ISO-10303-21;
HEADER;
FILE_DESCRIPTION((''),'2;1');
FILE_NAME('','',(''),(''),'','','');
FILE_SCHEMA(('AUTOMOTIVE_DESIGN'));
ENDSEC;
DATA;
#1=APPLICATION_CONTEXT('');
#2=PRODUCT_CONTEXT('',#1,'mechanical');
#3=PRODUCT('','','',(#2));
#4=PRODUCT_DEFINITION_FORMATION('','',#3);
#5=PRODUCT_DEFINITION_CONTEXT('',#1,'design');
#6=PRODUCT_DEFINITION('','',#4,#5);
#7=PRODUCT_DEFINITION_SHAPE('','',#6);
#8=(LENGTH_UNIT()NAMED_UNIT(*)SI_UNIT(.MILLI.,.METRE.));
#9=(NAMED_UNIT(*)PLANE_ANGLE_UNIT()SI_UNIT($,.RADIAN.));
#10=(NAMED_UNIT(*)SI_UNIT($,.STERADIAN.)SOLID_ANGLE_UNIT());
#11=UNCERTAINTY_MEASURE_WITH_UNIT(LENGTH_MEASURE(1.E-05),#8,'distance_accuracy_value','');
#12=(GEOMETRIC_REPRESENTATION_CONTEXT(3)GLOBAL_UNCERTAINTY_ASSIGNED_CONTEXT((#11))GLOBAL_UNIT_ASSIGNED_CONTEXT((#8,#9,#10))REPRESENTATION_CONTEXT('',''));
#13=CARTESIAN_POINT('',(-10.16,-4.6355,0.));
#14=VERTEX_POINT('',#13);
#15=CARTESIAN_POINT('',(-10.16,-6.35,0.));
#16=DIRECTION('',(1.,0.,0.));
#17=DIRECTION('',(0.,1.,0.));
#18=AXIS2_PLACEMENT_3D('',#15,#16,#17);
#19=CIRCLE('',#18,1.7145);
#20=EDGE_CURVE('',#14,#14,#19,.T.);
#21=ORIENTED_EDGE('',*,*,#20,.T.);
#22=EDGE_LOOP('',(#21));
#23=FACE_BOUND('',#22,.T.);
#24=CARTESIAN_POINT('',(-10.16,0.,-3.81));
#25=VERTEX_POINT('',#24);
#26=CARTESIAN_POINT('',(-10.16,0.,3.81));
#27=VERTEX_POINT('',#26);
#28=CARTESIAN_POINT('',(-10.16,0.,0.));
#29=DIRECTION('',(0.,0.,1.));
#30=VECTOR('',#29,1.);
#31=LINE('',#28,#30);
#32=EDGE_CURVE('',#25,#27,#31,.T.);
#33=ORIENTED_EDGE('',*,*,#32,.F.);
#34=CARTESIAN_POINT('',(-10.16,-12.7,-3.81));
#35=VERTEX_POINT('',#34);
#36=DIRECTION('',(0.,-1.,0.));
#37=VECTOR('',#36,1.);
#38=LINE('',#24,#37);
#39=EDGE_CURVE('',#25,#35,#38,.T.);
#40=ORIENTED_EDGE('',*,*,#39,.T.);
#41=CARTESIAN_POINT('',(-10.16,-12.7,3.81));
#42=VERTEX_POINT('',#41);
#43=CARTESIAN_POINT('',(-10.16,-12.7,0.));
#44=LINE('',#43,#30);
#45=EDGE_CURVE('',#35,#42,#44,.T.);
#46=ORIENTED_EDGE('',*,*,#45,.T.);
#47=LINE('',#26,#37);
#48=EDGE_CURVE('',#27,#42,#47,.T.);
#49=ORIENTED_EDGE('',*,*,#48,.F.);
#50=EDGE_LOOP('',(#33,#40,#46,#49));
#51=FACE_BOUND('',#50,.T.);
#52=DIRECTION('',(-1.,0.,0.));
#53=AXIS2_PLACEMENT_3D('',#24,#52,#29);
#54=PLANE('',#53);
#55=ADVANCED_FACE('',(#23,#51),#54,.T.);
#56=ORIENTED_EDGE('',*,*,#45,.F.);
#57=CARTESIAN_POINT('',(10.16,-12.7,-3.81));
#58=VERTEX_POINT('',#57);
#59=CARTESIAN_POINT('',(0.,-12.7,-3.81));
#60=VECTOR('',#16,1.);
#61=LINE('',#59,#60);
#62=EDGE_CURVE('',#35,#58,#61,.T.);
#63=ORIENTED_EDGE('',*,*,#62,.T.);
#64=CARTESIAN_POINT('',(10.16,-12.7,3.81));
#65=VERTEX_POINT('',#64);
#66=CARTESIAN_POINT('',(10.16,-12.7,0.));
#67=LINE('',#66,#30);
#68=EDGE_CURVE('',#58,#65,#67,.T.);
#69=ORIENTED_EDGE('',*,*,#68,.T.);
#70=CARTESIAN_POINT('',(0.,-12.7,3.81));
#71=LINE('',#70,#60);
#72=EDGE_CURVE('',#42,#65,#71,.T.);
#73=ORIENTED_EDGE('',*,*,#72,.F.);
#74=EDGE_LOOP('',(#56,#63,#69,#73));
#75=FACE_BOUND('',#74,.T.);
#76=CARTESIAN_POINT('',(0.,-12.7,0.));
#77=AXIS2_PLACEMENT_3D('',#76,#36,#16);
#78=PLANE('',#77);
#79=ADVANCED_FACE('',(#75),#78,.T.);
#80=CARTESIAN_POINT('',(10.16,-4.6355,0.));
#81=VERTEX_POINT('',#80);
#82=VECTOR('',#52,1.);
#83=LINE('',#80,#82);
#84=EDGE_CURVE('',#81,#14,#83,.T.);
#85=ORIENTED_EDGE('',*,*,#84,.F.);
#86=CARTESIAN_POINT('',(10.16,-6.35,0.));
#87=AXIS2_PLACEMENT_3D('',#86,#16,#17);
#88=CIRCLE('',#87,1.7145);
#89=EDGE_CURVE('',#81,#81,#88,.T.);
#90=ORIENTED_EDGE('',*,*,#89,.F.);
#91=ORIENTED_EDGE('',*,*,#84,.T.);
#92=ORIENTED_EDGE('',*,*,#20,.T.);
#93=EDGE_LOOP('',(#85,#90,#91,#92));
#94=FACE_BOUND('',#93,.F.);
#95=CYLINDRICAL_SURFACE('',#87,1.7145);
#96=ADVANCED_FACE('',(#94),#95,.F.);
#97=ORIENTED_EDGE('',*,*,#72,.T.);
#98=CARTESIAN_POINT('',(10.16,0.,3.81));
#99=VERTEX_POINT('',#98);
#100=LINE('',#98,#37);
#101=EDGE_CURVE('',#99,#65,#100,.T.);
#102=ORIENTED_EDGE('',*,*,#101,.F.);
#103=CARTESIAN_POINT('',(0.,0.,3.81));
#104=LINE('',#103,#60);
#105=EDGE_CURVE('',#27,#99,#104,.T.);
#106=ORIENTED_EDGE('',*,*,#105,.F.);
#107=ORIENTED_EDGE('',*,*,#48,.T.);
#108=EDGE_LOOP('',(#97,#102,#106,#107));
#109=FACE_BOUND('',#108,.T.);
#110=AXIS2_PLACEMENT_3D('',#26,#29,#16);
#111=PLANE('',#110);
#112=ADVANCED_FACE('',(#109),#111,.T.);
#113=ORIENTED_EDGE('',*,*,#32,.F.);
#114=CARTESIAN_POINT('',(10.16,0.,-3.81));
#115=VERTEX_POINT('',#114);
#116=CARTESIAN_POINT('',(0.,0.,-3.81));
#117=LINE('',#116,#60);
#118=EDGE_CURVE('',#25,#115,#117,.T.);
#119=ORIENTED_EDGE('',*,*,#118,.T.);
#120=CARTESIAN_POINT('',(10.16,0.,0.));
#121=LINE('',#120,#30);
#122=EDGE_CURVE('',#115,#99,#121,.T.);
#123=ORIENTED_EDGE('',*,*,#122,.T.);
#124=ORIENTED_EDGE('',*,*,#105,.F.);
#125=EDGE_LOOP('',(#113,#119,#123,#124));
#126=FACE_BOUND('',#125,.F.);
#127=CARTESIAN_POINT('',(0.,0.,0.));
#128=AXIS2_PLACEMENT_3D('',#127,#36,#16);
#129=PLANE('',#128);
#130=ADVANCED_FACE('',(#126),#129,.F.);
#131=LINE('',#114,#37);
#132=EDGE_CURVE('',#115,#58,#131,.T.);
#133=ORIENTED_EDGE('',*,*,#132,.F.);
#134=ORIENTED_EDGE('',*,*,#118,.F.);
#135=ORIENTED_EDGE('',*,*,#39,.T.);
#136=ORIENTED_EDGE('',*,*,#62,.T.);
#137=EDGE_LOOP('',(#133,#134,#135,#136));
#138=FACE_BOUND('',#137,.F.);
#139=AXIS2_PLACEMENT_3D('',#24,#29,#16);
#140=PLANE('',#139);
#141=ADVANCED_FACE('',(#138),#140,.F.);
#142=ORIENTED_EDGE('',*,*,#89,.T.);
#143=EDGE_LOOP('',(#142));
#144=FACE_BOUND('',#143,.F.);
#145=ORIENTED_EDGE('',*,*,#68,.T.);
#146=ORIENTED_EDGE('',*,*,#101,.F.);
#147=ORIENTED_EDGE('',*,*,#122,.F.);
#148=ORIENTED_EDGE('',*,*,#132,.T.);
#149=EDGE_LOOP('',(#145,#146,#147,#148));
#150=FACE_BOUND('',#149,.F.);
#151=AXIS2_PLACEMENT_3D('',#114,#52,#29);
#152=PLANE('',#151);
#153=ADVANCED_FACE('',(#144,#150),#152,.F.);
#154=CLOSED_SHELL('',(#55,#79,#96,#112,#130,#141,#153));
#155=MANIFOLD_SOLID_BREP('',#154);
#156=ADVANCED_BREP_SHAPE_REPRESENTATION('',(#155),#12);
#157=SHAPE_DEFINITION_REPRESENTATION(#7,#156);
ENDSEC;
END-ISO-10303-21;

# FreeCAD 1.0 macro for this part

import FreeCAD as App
import Part
import Sketcher
Q = App.Units.Quantity

doc = App.newDocument("Part")
body = doc.addObject("PartDesign::Body", "Body")

# Sketch on XZ plane
sketch1 = body.newObject("Sketcher::SketchObject", "Sketch")
sketch1.AttachmentSupport = (doc.getObject("XZ_Plane"), [""])
sketch1.MapMode = "FlatFace"
sketch1.addGeometry([
    Part.LineSegment(App.Vector(-10, 4, 0), App.Vector(-10, -4, 0)),
    Part.LineSegment(App.Vector(-10, -4, 0), App.Vector(10, -4, 0)),
    Part.LineSegment(App.Vector(10, -4, 0), App.Vector(10, 4, 0)),
    Part.LineSegment(App.Vector(10, 4, 0), App.Vector(-10, 4, 0)),
], False)
sketch1.addConstraint([
    Sketcher.Constraint("Coincident", 0, 2, 1, 1),
    Sketcher.Constraint("Coincident", 1, 2, 2, 1),
    Sketcher.Constraint("Coincident", 2, 2, 3, 1),
    Sketcher.Constraint("Coincident", 3, 2, 0, 1),
    Sketcher.Constraint("Vertical", 0),
    Sketcher.Constraint("Horizontal", 1),
    Sketcher.Constraint("Vertical", 2),
    Sketcher.Constraint("Horizontal", 3),
    Sketcher.Constraint("Symmetric", 0, 2, 2, 2, -1, 1),
    Sketcher.Constraint("DistanceX", 1, 1, 1, 2, Q("0.8 in")),
    Sketcher.Constraint("DistanceY", 0, 2, 0, 1, Q("0.3 in")),
])
pad1 = body.newObject("PartDesign::Pad", "Pad")
pad1.Profile = sketch1
pad1.Length = Q("0.5 in")

# Sketch on YZ plane
sketch2 = body.newObject("Sketcher::SketchObject", "Sketch001")
sketch2.AttachmentSupport = (doc.getObject("YZ_Plane"), [""])
sketch2.MapMode = "FlatFace"
sketch2.AttachmentOffset = App.Placement(App.Vector(0, 0, 0.4 * 25.4), App.Rotation())
sketch2.addGeometry(Part.Circle(App.Vector(-6.3, 0, 0), App.Vector(0, 0, 1), 1.7), False)
sketch2.addConstraint([
    Sketcher.Constraint("PointOnObject", 0, 3, -1),
    Sketcher.Constraint("Diameter", 0, Q("0.135 in")),
    Sketcher.Constraint("DistanceX", 0, 3, -1, 1, Q("0.25 in")),
])
pocket1 = body.newObject("PartDesign::Pocket", "Pocket")
pocket1.Profile = sketch2
pocket1.Length = Q("0.8 in")

doc.recompute()
